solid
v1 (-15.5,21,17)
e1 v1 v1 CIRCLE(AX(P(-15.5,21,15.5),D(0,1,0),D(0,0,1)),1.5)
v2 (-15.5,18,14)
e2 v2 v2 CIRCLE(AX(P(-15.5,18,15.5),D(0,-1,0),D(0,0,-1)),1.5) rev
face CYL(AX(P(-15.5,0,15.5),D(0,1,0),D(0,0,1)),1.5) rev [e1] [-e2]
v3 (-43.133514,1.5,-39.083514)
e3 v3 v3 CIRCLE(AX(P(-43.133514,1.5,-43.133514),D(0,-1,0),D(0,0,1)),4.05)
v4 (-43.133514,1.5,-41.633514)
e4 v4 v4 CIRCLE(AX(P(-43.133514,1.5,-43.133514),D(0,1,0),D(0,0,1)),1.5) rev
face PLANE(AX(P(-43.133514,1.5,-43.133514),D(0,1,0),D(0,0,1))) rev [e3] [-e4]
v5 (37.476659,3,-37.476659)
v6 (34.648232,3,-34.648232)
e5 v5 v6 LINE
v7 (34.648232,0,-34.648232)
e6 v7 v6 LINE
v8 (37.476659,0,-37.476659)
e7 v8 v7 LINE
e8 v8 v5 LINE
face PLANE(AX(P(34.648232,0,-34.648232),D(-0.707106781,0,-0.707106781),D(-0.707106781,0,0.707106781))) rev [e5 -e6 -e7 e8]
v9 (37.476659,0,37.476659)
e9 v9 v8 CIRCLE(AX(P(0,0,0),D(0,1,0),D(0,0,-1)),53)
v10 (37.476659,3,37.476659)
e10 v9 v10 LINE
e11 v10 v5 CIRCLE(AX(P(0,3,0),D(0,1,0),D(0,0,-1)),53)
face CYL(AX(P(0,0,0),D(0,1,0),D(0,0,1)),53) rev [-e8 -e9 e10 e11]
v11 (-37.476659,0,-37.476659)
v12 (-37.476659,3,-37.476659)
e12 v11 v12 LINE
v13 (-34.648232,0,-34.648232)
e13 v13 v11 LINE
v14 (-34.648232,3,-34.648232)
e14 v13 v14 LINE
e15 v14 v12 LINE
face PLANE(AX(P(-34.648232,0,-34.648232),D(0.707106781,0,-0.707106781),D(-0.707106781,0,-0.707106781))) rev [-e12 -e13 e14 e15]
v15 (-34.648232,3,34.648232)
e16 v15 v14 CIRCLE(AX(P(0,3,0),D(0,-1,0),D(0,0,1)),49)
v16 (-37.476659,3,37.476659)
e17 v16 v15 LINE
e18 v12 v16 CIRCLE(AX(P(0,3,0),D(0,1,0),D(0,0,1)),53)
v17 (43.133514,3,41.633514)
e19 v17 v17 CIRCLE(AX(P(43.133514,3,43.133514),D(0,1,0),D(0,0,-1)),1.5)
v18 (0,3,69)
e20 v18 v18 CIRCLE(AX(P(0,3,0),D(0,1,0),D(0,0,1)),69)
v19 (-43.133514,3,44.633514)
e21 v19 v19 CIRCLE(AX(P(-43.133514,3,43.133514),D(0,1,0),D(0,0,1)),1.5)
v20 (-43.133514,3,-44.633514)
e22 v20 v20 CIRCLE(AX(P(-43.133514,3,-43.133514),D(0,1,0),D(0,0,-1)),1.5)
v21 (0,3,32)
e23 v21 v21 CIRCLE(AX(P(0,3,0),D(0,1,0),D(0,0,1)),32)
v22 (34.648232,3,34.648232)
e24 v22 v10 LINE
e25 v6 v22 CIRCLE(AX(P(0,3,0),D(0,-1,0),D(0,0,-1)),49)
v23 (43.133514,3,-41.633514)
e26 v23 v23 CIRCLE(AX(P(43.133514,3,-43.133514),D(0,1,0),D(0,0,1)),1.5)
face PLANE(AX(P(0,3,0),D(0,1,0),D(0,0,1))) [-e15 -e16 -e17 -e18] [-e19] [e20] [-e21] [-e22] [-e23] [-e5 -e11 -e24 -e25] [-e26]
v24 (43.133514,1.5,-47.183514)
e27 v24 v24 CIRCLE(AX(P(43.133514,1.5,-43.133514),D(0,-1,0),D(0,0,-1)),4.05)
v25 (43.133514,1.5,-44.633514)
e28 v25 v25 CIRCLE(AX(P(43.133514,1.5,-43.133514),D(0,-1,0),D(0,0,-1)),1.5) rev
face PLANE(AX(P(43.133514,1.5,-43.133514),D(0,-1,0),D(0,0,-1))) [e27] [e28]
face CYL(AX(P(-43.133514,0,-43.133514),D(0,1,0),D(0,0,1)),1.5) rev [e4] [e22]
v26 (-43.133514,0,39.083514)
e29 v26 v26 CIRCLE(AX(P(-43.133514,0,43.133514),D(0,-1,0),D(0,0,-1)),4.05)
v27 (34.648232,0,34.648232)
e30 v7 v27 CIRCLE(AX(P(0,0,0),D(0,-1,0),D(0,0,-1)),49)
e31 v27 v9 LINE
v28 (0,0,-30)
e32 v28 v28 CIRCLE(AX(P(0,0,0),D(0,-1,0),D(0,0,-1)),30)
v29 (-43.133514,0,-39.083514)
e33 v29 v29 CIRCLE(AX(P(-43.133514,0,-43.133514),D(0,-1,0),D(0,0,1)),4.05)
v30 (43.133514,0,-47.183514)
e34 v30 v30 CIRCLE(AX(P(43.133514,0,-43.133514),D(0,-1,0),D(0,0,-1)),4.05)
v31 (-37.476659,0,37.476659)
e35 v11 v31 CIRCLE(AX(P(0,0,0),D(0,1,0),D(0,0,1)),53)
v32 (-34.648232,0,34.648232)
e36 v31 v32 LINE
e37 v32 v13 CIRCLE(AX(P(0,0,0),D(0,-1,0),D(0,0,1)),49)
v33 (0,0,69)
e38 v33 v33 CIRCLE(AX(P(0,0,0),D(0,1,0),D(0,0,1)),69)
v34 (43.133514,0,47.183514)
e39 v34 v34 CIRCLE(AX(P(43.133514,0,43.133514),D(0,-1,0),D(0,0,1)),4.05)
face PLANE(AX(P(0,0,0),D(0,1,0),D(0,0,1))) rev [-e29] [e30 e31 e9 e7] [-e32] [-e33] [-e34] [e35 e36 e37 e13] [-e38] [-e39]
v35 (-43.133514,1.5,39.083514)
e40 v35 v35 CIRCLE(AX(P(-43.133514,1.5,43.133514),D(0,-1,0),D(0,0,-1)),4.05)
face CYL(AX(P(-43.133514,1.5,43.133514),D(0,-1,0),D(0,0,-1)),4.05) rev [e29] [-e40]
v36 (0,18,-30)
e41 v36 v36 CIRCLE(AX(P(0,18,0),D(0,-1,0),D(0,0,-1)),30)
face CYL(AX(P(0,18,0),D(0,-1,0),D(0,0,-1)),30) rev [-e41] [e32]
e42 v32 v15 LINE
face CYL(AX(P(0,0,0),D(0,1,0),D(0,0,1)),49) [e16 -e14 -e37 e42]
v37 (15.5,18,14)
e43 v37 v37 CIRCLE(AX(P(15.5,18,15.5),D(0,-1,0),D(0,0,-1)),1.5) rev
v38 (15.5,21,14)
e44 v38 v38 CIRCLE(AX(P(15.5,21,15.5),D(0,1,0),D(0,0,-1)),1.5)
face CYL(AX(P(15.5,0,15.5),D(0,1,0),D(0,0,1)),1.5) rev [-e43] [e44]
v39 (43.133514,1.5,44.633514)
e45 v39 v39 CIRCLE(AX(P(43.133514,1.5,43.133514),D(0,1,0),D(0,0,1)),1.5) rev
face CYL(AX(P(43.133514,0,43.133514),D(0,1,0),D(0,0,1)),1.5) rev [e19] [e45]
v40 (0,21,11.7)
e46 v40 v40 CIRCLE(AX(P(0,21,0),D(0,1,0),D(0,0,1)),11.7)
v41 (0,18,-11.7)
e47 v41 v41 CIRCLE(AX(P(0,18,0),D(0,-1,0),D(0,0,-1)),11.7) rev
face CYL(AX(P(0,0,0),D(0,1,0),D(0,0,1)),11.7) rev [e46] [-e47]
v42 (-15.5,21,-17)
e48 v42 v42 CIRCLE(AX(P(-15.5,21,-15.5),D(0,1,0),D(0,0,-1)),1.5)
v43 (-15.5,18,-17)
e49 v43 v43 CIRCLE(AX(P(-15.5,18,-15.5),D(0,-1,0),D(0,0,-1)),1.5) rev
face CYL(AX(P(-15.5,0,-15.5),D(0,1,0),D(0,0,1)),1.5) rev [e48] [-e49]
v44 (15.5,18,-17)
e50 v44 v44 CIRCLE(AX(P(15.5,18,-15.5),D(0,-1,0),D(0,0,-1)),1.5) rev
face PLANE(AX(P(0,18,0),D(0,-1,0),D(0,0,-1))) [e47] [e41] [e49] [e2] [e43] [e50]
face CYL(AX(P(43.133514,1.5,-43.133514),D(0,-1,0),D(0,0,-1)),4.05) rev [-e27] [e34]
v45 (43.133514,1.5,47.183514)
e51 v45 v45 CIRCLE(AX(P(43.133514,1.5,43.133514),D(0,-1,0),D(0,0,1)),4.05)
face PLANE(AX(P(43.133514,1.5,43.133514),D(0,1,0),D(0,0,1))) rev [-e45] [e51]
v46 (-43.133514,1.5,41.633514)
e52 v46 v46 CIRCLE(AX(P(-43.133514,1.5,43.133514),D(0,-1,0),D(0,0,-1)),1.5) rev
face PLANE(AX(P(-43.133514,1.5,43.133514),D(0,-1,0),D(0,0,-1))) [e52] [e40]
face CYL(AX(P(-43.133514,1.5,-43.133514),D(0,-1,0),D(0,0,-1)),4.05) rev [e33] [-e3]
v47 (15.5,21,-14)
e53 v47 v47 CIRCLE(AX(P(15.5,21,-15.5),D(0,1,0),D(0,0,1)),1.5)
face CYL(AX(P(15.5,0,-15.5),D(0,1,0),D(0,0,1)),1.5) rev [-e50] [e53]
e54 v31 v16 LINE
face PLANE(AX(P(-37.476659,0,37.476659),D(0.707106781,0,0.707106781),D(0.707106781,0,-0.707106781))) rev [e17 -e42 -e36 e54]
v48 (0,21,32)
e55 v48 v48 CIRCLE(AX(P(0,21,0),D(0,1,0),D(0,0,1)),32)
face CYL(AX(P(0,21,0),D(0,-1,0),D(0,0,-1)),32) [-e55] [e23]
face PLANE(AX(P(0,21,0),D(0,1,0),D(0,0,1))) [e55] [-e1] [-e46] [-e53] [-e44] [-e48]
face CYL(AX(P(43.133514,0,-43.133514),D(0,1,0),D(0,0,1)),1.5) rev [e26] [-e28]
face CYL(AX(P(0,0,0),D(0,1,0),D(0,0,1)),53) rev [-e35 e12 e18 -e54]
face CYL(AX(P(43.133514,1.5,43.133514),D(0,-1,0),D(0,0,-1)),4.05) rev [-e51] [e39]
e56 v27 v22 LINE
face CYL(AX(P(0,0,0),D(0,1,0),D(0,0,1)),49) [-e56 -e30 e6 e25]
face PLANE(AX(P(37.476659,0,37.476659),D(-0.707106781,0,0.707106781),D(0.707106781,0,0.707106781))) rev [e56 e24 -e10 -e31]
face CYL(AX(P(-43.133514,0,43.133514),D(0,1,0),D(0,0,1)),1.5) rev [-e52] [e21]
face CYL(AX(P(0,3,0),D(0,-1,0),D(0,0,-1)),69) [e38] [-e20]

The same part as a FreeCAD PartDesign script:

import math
import FreeCAD as App
import Part
import Sketcher
Q = App.Units.Quantity

doc = App.newDocument("Part")
body = doc.addObject("PartDesign::Body", "Body")

# Sketch on XZ plane
sketch1 = body.newObject("Sketcher::SketchObject", "Sketch")
sketch1.AttachmentSupport = (doc.getObject("XZ_Plane"), [""])
sketch1.MapMode = "FlatFace"
sketch1.addGeometry(Part.Circle(App.Vector(0, 0, 0), App.Vector(0, 0, 1), 69), False)
sketch1.addConstraint([
    Sketcher.Constraint("Coincident", 0, 3, -1, 1),
    Sketcher.Constraint("Diameter", 0, Q("138 mm")),
])
pad1 = body.newObject("PartDesign::Pad", "Pad")
pad1.Profile = sketch1
pad1.Length = 3
pad1.Reversed = True

# Sketch on XZ plane
sketch2 = body.newObject("Sketcher::SketchObject", "Sketch001")
sketch2.AttachmentSupport = (doc.getObject("XZ_Plane"), [""])
sketch2.MapMode = "FlatFace"
sketch2.AttachmentOffset = App.Placement(App.Vector(0, 0, -3), App.Rotation())
sketch2.addGeometry(Part.Circle(App.Vector(0, 0, 0), App.Vector(0, 0, 1), 32), False)
sketch2.addConstraint([
    Sketcher.Constraint("Coincident", 0, 3, -1, 1),
    Sketcher.Constraint("Diameter", 0, Q("64 mm")),
])
pad2 = body.newObject("PartDesign::Pad", "Pad001")
pad2.Profile = sketch2
pad2.Length = 18
pad2.Reversed = True

# Sketch on XZ plane
sketch3 = body.newObject("Sketcher::SketchObject", "Sketch002")
sketch3.AttachmentSupport = (doc.getObject("XZ_Plane"), [""])
sketch3.MapMode = "FlatFace"
sketch3.AttachmentOffset = App.Placement(App.Vector(0, 0, -21), App.Rotation())
sketch3.addGeometry([
    Part.Circle(App.Vector(0, 0, 0), App.Vector(0, 0, 1), 11.7),  # 0
    Part.Circle(App.Vector(15.5, -15.5, 0), App.Vector(0, 0, 1), 1.5),  # 1
    Part.Circle(App.Vector(-15.5, -15.5, 0), App.Vector(0, 0, 1), 1.5),  # 2
    Part.Circle(App.Vector(15.5, 15.5, 0), App.Vector(0, 0, 1), 1.5),  # 3
    Part.Circle(App.Vector(-15.5, 15.5, 0), App.Vector(0, 0, 1), 1.5),  # 4
], False)
sketch3.addConstraint([
    Sketcher.Constraint("Coincident", 0, 3, -1, 1),
    Sketcher.Constraint("Equal", 1, 2),
    Sketcher.Constraint("Equal", 2, 3),
    Sketcher.Constraint("Equal", 3, 4),
    Sketcher.Constraint("Symmetric", 2, 3, 3, 3, -1, 1),
    Sketcher.Constraint("Symmetric", 1, 3, 4, 3, -1, 1),
    Sketcher.Constraint("Symmetric", 1, 3, 2, 3, -2),
    Sketcher.Constraint("Diameter", 1, Q("3 mm")),
    Sketcher.Constraint("Diameter", 0, Q("23.4 mm")),
    Sketcher.Constraint("DistanceX", 2, 3, 1, 3, Q("31 mm")),
    Sketcher.Constraint("DistanceY", 1, 3, 3, 3, Q("31 mm")),
])
pocket1 = body.newObject("PartDesign::Pocket", "Pocket")
pocket1.Profile = sketch3
pocket1.Type = "ThroughAll"
pocket1.Reversed = True

# Sketch on XZ plane
sketch4 = body.newObject("Sketcher::SketchObject", "Sketch003")
sketch4.AttachmentSupport = (doc.getObject("XZ_Plane"), [""])
sketch4.MapMode = "FlatFace"
sketch4.addGeometry(Part.Circle(App.Vector(0, 0, 0), App.Vector(0, 0, 1), 30), False)
sketch4.addConstraint([
    Sketcher.Constraint("Coincident", 0, 3, -1, 1),
    Sketcher.Constraint("Diameter", 0, Q("60 mm")),
])
pocket2 = body.newObject("PartDesign::Pocket", "Pocket001")
pocket2.Profile = sketch4
pocket2.Length = 18

# Sketch on XZ plane
sketch5 = body.newObject("Sketcher::SketchObject", "Sketch004")
sketch5.AttachmentSupport = (doc.getObject("XZ_Plane"), [""])
sketch5.MapMode = "FlatFace"
sketch5.AttachmentOffset = App.Placement(App.Vector(0, 0, -3), App.Rotation())
sketch5.addGeometry([
    Part.Circle(App.Vector(43.133514, -43.133514, 0), App.Vector(0, 0, 1), 1.5),  # 0
    Part.Circle(App.Vector(43.133514, 43.133514, 0), App.Vector(0, 0, 1), 1.5),  # 1
    Part.Circle(App.Vector(-43.133514, 43.133514, 0), App.Vector(0, 0, 1), 1.5),  # 2
    Part.Circle(App.Vector(-43.133514, -43.133514, 0), App.Vector(0, 0, 1), 1.5),  # 3
    Part.LineSegment(App.Vector(37.476659, -37.476659, 0), App.Vector(34.648232, -34.648232, 0)),  # 4
    Part.ArcOfCircle(Part.Circle(App.Vector(0, 0, 0), App.Vector(0, 0, 1), 49), math.radians(-45), math.radians(45)),  # 5
    Part.LineSegment(App.Vector(34.648232, 34.648232, 0), App.Vector(37.476659, 37.476659, 0)),  # 6
    Part.ArcOfCircle(Part.Circle(App.Vector(0, 0, 0), App.Vector(0, 0, 1), 53), math.radians(-45), math.radians(45)),  # 7
    Part.LineSegment(App.Vector(-37.476659, 37.476659, 0), App.Vector(-34.648232, 34.648232, 0)),  # 8
    Part.ArcOfCircle(Part.Circle(App.Vector(0, 0, 0), App.Vector(0, 0, 1), 49), math.radians(135), math.radians(225)),  # 9
    Part.LineSegment(App.Vector(-34.648232, -34.648232, 0), App.Vector(-37.476659, -37.476659, 0)),  # 10
    Part.ArcOfCircle(Part.Circle(App.Vector(0, 0, 0), App.Vector(0, 0, 1), 53), math.radians(135), math.radians(225)),  # 11
], False)
sketch5.addConstraint([
    Sketcher.Constraint("Coincident", 4, 2, 5, 1),
    Sketcher.Constraint("Coincident", 5, 2, 6, 1),
    Sketcher.Constraint("Coincident", 6, 2, 7, 2),
    Sketcher.Constraint("Coincident", 7, 1, 4, 1),
    Sketcher.Constraint("Coincident", 8, 2, 9, 1),
    Sketcher.Constraint("Coincident", 9, 2, 10, 1),
    Sketcher.Constraint("Coincident", 10, 2, 11, 2),
    Sketcher.Constraint("Coincident", 11, 1, 8, 1),
    Sketcher.Constraint("Coincident", 5, 3, -1, 1),
    Sketcher.Constraint("Coincident", 7, 3, -1, 1),
    Sketcher.Constraint("Coincident", 9, 3, -1, 1),
    Sketcher.Constraint("Coincident", 11, 3, -1, 1),
    Sketcher.Constraint("Equal", 0, 1),
    Sketcher.Constraint("Equal", 1, 2),
    Sketcher.Constraint("Equal", 2, 3),
    Sketcher.Constraint("Equal", 5, 9),
    Sketcher.Constraint("Equal", 7, 11),
    Sketcher.Constraint("Symmetric", 0, 3, 2, 3, -1, 1),
    Sketcher.Constraint("Symmetric", 1, 3, 3, 3, -1, 1),
    Sketcher.Constraint("Symmetric", 1, 3, 2, 3, -2),
    Sketcher.Constraint("Perpendicular", 4, 6),
    Sketcher.Constraint("Perpendicular", 6, 8),
    Sketcher.Constraint("Perpendicular", 8, 10),
    Sketcher.Constraint("Horizontal", 5, 2, 8, 2),
    Sketcher.Constraint("Horizontal", 4, 2, 9, 2),
    Sketcher.Constraint("Horizontal", 7, 1, 10, 2),
    Sketcher.Constraint("Vertical", 4, 2, 5, 2),
    Sketcher.Constraint("Diameter", 0, Q("3 mm")),
    Sketcher.Constraint("Radius", 5, Q("49 mm")),
    Sketcher.Constraint("Radius", 7, Q("53 mm")),
    Sketcher.Constraint("DistanceX", -1, 1, 6, 2, Q("37.476659 mm")),
    Sketcher.Constraint("DistanceX", 4, 2, 0, 3, Q("8.485281 mm")),
    Sketcher.Constraint("DistanceY", 0, 3, 4, 2, Q("8.485281 mm")),
])
pocket3 = body.newObject("PartDesign::Pocket", "Pocket002")
pocket3.Profile = sketch5
pocket3.Type = "ThroughAll"
pocket3.Reversed = True

# Sketch on XZ plane
sketch6 = body.newObject("Sketcher::SketchObject", "Sketch005")
sketch6.AttachmentSupport = (doc.getObject("XZ_Plane"), [""])
sketch6.MapMode = "FlatFace"
sketch6.addGeometry([
    Part.Circle(App.Vector(-43.133514, 43.133514, 0), App.Vector(0, 0, 1), 4.05),
    Part.Circle(App.Vector(43.133514, 43.133514, 0), App.Vector(0, 0, 1), 4.05),
    Part.Circle(App.Vector(43.133514, -43.133514, 0), App.Vector(0, 0, 1), 4.05),
    Part.Circle(App.Vector(-43.133514, -43.133514, 0), App.Vector(0, 0, 1), 4.05),
], False)
sketch6.addConstraint([
    Sketcher.Constraint("Equal", 0, 1),
    Sketcher.Constraint("Equal", 1, 2),
    Sketcher.Constraint("Equal", 2, 3),
    Sketcher.Constraint("Symmetric", 0, 3, 2, 3, -1, 1),
    Sketcher.Constraint("Symmetric", 1, 3, 3, 3, -1, 1),
    Sketcher.Constraint("Symmetric", 0, 3, 1, 3, -2),
    Sketcher.Constraint("Diameter", 0, Q("8.1 mm")),
    Sketcher.Constraint("DistanceX", 0, 3, -1, 1, Q("43.133514 mm")),
    Sketcher.Constraint("DistanceY", -1, 1, 0, 3, Q("43.133514 mm")),
])
pocket4 = body.newObject("PartDesign::Pocket", "Pocket003")
pocket4.Profile = sketch6
pocket4.Length = 1.5

doc.recompute()
